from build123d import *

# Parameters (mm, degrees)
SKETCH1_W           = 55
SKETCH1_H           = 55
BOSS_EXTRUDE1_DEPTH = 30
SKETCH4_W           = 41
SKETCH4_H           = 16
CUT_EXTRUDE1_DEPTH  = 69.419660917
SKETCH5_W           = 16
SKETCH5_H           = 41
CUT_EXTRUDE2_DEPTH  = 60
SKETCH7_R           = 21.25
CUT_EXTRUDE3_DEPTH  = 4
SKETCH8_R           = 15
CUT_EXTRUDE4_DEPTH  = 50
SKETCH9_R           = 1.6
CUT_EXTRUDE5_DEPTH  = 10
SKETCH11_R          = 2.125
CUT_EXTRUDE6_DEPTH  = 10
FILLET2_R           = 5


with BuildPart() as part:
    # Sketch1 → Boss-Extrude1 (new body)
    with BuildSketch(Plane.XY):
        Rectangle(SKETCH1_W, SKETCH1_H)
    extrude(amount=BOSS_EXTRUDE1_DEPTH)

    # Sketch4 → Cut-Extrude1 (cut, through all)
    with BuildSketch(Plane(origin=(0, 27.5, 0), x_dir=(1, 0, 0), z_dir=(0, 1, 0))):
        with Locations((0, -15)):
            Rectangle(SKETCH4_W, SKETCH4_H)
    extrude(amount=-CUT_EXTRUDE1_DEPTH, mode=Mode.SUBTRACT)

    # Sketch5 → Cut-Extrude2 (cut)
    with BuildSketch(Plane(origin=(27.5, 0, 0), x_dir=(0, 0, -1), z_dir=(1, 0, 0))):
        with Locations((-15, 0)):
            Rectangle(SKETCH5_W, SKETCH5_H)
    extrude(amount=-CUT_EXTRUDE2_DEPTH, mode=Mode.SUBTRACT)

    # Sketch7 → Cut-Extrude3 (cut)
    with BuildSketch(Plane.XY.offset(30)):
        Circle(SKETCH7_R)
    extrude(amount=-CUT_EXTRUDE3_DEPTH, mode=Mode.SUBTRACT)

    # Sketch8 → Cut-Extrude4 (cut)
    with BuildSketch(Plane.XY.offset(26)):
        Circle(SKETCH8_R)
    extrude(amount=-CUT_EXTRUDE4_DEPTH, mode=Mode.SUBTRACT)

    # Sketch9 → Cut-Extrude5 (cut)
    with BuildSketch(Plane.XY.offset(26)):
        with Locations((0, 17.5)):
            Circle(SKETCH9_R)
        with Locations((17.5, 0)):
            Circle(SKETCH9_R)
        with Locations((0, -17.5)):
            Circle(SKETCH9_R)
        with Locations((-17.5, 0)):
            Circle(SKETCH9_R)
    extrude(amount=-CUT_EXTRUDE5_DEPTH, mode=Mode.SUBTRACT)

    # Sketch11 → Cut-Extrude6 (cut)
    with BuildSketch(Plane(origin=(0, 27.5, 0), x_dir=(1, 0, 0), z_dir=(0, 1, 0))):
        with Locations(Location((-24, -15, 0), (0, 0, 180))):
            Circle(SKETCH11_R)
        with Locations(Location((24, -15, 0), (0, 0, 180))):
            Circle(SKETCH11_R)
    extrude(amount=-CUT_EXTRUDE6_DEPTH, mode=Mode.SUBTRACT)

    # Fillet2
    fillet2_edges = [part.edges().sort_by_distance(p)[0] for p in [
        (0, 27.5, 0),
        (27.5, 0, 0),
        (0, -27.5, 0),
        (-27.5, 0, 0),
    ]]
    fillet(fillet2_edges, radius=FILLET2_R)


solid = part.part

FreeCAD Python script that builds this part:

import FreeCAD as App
import Part
import Sketcher
from FreeCAD import Vector
Q = App.Units.Quantity


def edges_at(feature, points):
    """Names of the edges that pass closest to the given points."""
    edges = feature.Shape.Edges
    near = lambda p: min(range(len(edges)), key=lambda i: edges[i].distToShape(Part.Vertex(*p))[0])
    return sorted({f"Edge{near(p) + 1}" for p in points})


def add_polygon(sketch, points):
    """Adds a closed chain of lines whose ends are joined by coincident constraints."""
    first, n = sketch.GeometryCount, len(points)
    for a, b in zip(points, points[1:] + points[:1]):
        sketch.addGeometry(Part.LineSegment(App.Vector(*a, 0), App.Vector(*b, 0)), False)
    for i in range(n):
        sketch.addConstraint(Sketcher.Constraint("Coincident", first + i, 2, first + (i + 1) % n, 1))

doc = App.newDocument("Part")
body = doc.addObject("PartDesign::Body", "Body")

sketch1 = body.newObject("Sketcher::SketchObject", "Sketch")
sketch1.AttachmentSupport = (doc.getObject("XY_Plane"), [""])
sketch1.MapMode = "FlatFace"
add_polygon(sketch1, [(-27.5, 27.5), (-27.5, -27.5), (27.5, -27.5), (27.5, 27.5)])
sketch1.addConstraint(Sketcher.Constraint("Vertical", 0))
sketch1.addConstraint(Sketcher.Constraint("Horizontal", 1))
sketch1.addConstraint(Sketcher.Constraint("Vertical", 2))
sketch1.addConstraint(Sketcher.Constraint("Horizontal", 3))
sketch1.addConstraint(Sketcher.Constraint("Symmetric", 0, 2, 2, 2, -1, 1))
sketch1.addConstraint(Sketcher.Constraint("Equal", 3, 0))
sketch1.addConstraint(Sketcher.Constraint("DistanceX", 1, 1, 1, 2, Q("55 mm")))
pad1 = body.newObject("PartDesign::Pad", "Pad")
pad1.Profile = sketch1
pad1.Length = 30

sketch2 = body.newObject("Sketcher::SketchObject", "Sketch001")
sketch2.AttachmentSupport = (doc.getObject("XZ_Plane"), [""])
sketch2.MapMode = "FlatFace"
sketch2.AttachmentOffset = App.Placement(Vector(0, 0, -27.5), App.Rotation())
add_polygon(sketch2, [(-20.5, 7), (-20.5, 23), (20.5, 23), (20.5, 7)])
sketch2.addConstraint(Sketcher.Constraint("Vertical", 0))
sketch2.addConstraint(Sketcher.Constraint("Horizontal", 1))
sketch2.addConstraint(Sketcher.Constraint("Vertical", 2))
sketch2.addConstraint(Sketcher.Constraint("Horizontal", 3))
sketch2.addConstraint(Sketcher.Constraint("DistanceX", 1, 1, 1, 2, Q("41 mm")))
sketch2.addConstraint(Sketcher.Constraint("DistanceY", 0, 1, 0, 2, Q("16 mm")))
sketch2.addConstraint(Sketcher.Constraint("DistanceY", -1, 1, 0, 2, Q("23 mm")))
sketch2.addConstraint(Sketcher.Constraint("DistanceX", 0, 2, -1, 1, Q("20.5 mm")))
pocket1 = body.newObject("PartDesign::Pocket", "Pocket")
pocket1.Profile = sketch2
pocket1.Type = "ThroughAll"
pocket1.Reversed = True

sketch3 = body.newObject("Sketcher::SketchObject", "Sketch002")
sketch3.AttachmentSupport = (doc.getObject("YZ_Plane"), [""])
sketch3.MapMode = "FlatFace"
sketch3.AttachmentOffset = App.Placement(Vector(0, 0, 27.5), App.Rotation())
add_polygon(sketch3, [(20.5, 23), (-20.5, 23), (-20.5, 7), (20.5, 7)])
sketch3.addConstraint(Sketcher.Constraint("Horizontal", 0))
sketch3.addConstraint(Sketcher.Constraint("Vertical", 1))
sketch3.addConstraint(Sketcher.Constraint("Horizontal", 2))
sketch3.addConstraint(Sketcher.Constraint("Vertical", 3))
sketch3.addConstraint(Sketcher.Constraint("DistanceX", 0, 2, 0, 1, Q("41 mm")))
sketch3.addConstraint(Sketcher.Constraint("DistanceY", 1, 2, 1, 1, Q("16 mm")))
sketch3.addConstraint(Sketcher.Constraint("DistanceY", -1, 1, 0, 2, Q("23 mm")))
sketch3.addConstraint(Sketcher.Constraint("DistanceX", 0, 2, -1, 1, Q("20.5 mm")))
pocket2 = body.newObject("PartDesign::Pocket", "Pocket001")
pocket2.Profile = sketch3
pocket2.Length = 60

sketch4 = body.newObject("Sketcher::SketchObject", "Sketch003")
sketch4.AttachmentSupport = (doc.getObject("XY_Plane"), [""])
sketch4.MapMode = "FlatFace"
sketch4.AttachmentOffset = App.Placement(Vector(0, 0, 30), App.Rotation())
sketch4.addGeometry(Part.Circle(Vector(0, 0, 0), Vector(0, 0, 1), 21.25), False)
sketch4.addConstraint(Sketcher.Constraint("Coincident", 0, 3, -1, 1))
sketch4.addConstraint(Sketcher.Constraint("Diameter", 0, Q("42.5 mm")))
pocket3 = body.newObject("PartDesign::Pocket", "Pocket002")
pocket3.Profile = sketch4
pocket3.Length = 4

sketch5 = body.newObject("Sketcher::SketchObject", "Sketch004")
sketch5.AttachmentSupport = (doc.getObject("XY_Plane"), [""])
sketch5.MapMode = "FlatFace"
sketch5.AttachmentOffset = App.Placement(Vector(0, 0, 26), App.Rotation())
sketch5.addGeometry(Part.Circle(Vector(0, 0, 0), Vector(0, 0, 1), 15), False)
sketch5.addConstraint(Sketcher.Constraint("Coincident", 0, 3, -1, 1))
sketch5.addConstraint(Sketcher.Constraint("Diameter", 0, Q("30 mm")))
pocket4 = body.newObject("PartDesign::Pocket", "Pocket003")
pocket4.Profile = sketch5
pocket4.Length = 50

sketch6 = body.newObject("Sketcher::SketchObject", "Sketch005")
sketch6.AttachmentSupport = (doc.getObject("XY_Plane"), [""])
sketch6.MapMode = "FlatFace"
sketch6.AttachmentOffset = App.Placement(Vector(0, 0, 26), App.Rotation())
sketch6.addGeometry(Part.Circle(Vector(0, 17.5, 0), Vector(0, 0, 1), 1.6), False)
sketch6.addGeometry(Part.Circle(Vector(17.5, 0, 0), Vector(0, 0, 1), 1.6), False)
sketch6.addGeometry(Part.Circle(Vector(0, -17.5, 0), Vector(0, 0, 1), 1.6), False)
sketch6.addGeometry(Part.Circle(Vector(-17.5, 0, 0), Vector(0, 0, 1), 1.6), False)
sketch6.addConstraint(Sketcher.Constraint("Equal", 0, 1))
sketch6.addConstraint(Sketcher.Constraint("Equal", 1, 2))
sketch6.addConstraint(Sketcher.Constraint("Equal", 2, 3))
sketch6.addConstraint(Sketcher.Constraint("Symmetric", 0, 3, 2, 3, -1, 1))
sketch6.addConstraint(Sketcher.Constraint("Symmetric", 1, 3, 3, 3, -1, 1))
sketch6.addConstraint(Sketcher.Constraint("PointOnObject", 0, 3, -2))
sketch6.addConstraint(Sketcher.Constraint("PointOnObject", 1, 3, -1))
sketch6.addConstraint(Sketcher.Constraint("Diameter", 0, Q("3.2 mm")))
sketch6.addConstraint(Sketcher.Constraint("DistanceY", 2, 3, 0, 3, Q("35 mm")))
sketch6.addConstraint(Sketcher.Constraint("DistanceX", 3, 3, 1, 3, Q("35 mm")))
pocket5 = body.newObject("PartDesign::Pocket", "Pocket004")
pocket5.Profile = sketch6
pocket5.Length = 10

sketch7 = body.newObject("Sketcher::SketchObject", "Sketch006")
sketch7.AttachmentSupport = (doc.getObject("XZ_Plane"), [""])
sketch7.MapMode = "FlatFace"
sketch7.AttachmentOffset = App.Placement(Vector(0, 0, -27.5), App.Rotation())
sketch7.addGeometry(Part.Circle(Vector(-24, 15, 0), Vector(0, 0, 1), 2.125), False)
sketch7.addGeometry(Part.Circle(Vector(24, 15, 0), Vector(0, 0, 1), 2.125), False)
sketch7.addConstraint(Sketcher.Constraint("Equal", 0, 1))
sketch7.addConstraint(Sketcher.Constraint("Symmetric", 0, 3, 1, 3, -2))
sketch7.addConstraint(Sketcher.Constraint("Diameter", 0, Q("4.25 mm")))
sketch7.addConstraint(Sketcher.Constraint("DistanceX", 0, 3, -1, 1, Q("24 mm")))
sketch7.addConstraint(Sketcher.Constraint("DistanceY", -1, 1, 0, 3, Q("15 mm")))
pocket6 = body.newObject("PartDesign::Pocket", "Pocket005")
pocket6.Profile = sketch7
pocket6.Length = 10
pocket6.Reversed = True
doc.recompute()

fillet = body.newObject("PartDesign::Fillet", "Fillet")
fillet.Base = (pocket6, edges_at(pocket6, [
    (0, 27.5, 0),
    (27.5, 0, 0),
    (0, -27.5, 0),
    (-27.5, 0, 0),
]))
fillet.Radius = 5

doc.recompute()
